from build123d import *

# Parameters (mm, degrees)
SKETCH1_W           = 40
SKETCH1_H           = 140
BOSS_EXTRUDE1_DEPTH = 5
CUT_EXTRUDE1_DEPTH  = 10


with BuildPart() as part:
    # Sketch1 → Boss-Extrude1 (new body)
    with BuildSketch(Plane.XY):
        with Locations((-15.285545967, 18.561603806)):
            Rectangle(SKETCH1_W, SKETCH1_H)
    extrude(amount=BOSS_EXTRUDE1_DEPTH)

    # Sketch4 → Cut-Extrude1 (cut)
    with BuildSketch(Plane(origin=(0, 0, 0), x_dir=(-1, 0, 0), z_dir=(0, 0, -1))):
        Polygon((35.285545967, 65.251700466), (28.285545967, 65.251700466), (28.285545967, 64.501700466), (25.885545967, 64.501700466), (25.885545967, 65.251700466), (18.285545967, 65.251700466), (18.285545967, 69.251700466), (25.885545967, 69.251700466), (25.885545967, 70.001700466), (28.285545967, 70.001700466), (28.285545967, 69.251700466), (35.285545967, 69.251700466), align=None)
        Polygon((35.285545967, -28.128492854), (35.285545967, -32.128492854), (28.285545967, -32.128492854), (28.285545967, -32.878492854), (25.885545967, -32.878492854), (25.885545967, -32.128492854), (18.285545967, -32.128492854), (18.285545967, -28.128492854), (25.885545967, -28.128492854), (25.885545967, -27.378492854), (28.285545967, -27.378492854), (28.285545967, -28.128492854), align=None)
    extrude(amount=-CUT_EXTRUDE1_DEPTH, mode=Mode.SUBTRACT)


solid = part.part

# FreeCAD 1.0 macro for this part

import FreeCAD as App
import Part
import Sketcher

V = App.Vector
Q = App.Units.Quantity


def add_polygon(sketch, points):
    """Adds a closed chain of lines whose ends are joined by coincident constraints."""
    first, n = sketch.GeometryCount, len(points)
    for a, b in zip(points, points[1:] + points[:1]):
        sketch.addGeometry(Part.LineSegment(App.Vector(*a, 0), App.Vector(*b, 0)), False)
    for i in range(n):
        sketch.addConstraint(Sketcher.Constraint("Coincident", first + i, 2, first + (i + 1) % n, 1))

doc = App.newDocument("Part")
params = doc.addObject("Spreadsheet::Sheet", "Params")
for row, (alias, value) in enumerate([
    ("sketch1_width", "40 mm"),
    ("sketch1_height", "140 mm"),
    ("pad1_length", "5 mm"),
    ("sketch2_width", "7 mm"),
    ("sketch2_height", "4 mm"),
    ("sketch2_width2", "2.4 mm"),
    ("sketch2_width3", "7.6 mm"),
    ("sketch2_height2", "0.75 mm"),
    ("pocket1_length", "10 mm"),
], start=1):
    params.set(f"A{row}", alias)
    params.set(f"B{row}", "=" + value)
    params.setAlias(f"B{row}", alias)

body = doc.addObject("PartDesign::Body", "Body")

# Sketch on XY plane
sketch1 = doc.addObject("Sketcher::SketchObject", "Sketch")
body.addObject(sketch1)
sketch1.AttachmentSupport = (doc.XY_Plane, [""])
sketch1.MapMode = "FlatFace"
add_polygon(sketch1, [(-35, 89), (-35, -51), (5, -51), (5, 89)])  # lines 0-3
sketch1.addConstraint(Sketcher.Constraint("Vertical", 0))
sketch1.addConstraint(Sketcher.Constraint("Horizontal", 1))
sketch1.addConstraint(Sketcher.Constraint("Vertical", 2))
sketch1.addConstraint(Sketcher.Constraint("Horizontal", 3))
sketch1.addConstraint(Sketcher.Constraint("DistanceX", 1, 1, 1, 2, Q("40 mm")))
sketch1.addConstraint(Sketcher.Constraint("DistanceY", 0, 2, 0, 1, Q("140 mm")))
sketch1.addConstraint(Sketcher.Constraint("DistanceX", 0, 2, -1, 1, Q("35.285546 mm")))
sketch1.addConstraint(Sketcher.Constraint("DistanceY", 0, 2, -1, 1, Q("51.438396 mm")))
sketch1.setExpression("Constraints[8]", "Params.sketch1_width")
sketch1.setExpression("Constraints[9]", "Params.sketch1_height")
pad1 = doc.addObject("PartDesign::Pad", "Pad")
body.addObject(pad1)
pad1.Profile = sketch1
pad1.setExpression("Length", "Params.pad1_length")

# Sketch on XY plane
sketch2 = doc.addObject("Sketcher::SketchObject", "Sketch001")
body.addObject(sketch2)
sketch2.AttachmentSupport = (doc.XY_Plane, [""])
sketch2.MapMode = "FlatFace"
add_polygon(sketch2, [(-28.3, 65.3), (-35.3, 65.3), (-35.3, 69.3), (-28.3, 69.3), (-28.3, 70), (-25.9, 70), (-25.9, 69.3), (-18.3, 69.3), (-18.3, 65.3), (-25.9, 65.3), (-25.9, 64.5), (-28.3, 64.5)])  # lines 0-11
add_polygon(sketch2, [(-35.3, -32.1), (-35.3, -28.1), (-28.3, -28.1), (-28.3, -27.4), (-25.9, -27.4), (-25.9, -28.1), (-18.3, -28.1), (-18.3, -32.1), (-25.9, -32.1), (-25.9, -32.9), (-28.3, -32.9), (-28.3, -32.1)])  # lines 12-23
sketch2.addConstraint(Sketcher.Constraint("Horizontal", 0))
sketch2.addConstraint(Sketcher.Constraint("Vertical", 1))
sketch2.addConstraint(Sketcher.Constraint("Horizontal", 2))
sketch2.addConstraint(Sketcher.Constraint("Vertical", 3))
sketch2.addConstraint(Sketcher.Constraint("Horizontal", 4))
sketch2.addConstraint(Sketcher.Constraint("Vertical", 5))
sketch2.addConstraint(Sketcher.Constraint("Horizontal", 6))
sketch2.addConstraint(Sketcher.Constraint("Vertical", 7))
sketch2.addConstraint(Sketcher.Constraint("Horizontal", 8))
sketch2.addConstraint(Sketcher.Constraint("Vertical", 9))
sketch2.addConstraint(Sketcher.Constraint("Horizontal", 10))
sketch2.addConstraint(Sketcher.Constraint("Vertical", 11))
sketch2.addConstraint(Sketcher.Constraint("Vertical", 12))
sketch2.addConstraint(Sketcher.Constraint("Horizontal", 13))
sketch2.addConstraint(Sketcher.Constraint("Vertical", 14))
sketch2.addConstraint(Sketcher.Constraint("Horizontal", 15))
sketch2.addConstraint(Sketcher.Constraint("Vertical", 16))
sketch2.addConstraint(Sketcher.Constraint("Horizontal", 17))
sketch2.addConstraint(Sketcher.Constraint("Vertical", 18))
sketch2.addConstraint(Sketcher.Constraint("Horizontal", 19))
sketch2.addConstraint(Sketcher.Constraint("Vertical", 20))
sketch2.addConstraint(Sketcher.Constraint("Horizontal", 21))
sketch2.addConstraint(Sketcher.Constraint("Vertical", 22))
sketch2.addConstraint(Sketcher.Constraint("Horizontal", 23))
sketch2.addConstraint(Sketcher.Constraint("Horizontal", 2, 2, 5, 2))
sketch2.addConstraint(Sketcher.Constraint("Horizontal", 0, 2, 7, 2))
sketch2.addConstraint(Sketcher.Constraint("Horizontal", 13, 2, 16, 2))
sketch2.addConstraint(Sketcher.Constraint("Horizontal", 19, 2, 22, 2))
sketch2.addConstraint(Sketcher.Constraint("Vertical", 5, 2, 8, 2))
sketch2.addConstraint(Sketcher.Constraint("Vertical", 3, 2, 10, 2))
sketch2.addConstraint(Sketcher.Constraint("Vertical", 1, 2, 12, 2))
sketch2.addConstraint(Sketcher.Constraint("Vertical", 11, 2, 13, 2))
sketch2.addConstraint(Sketcher.Constraint("Vertical", 9, 2, 15, 2))
sketch2.addConstraint(Sketcher.Constraint("Vertical", 7, 2, 17, 2))
sketch2.addConstraint(Sketcher.Constraint("Vertical", 16, 2, 19, 2))
sketch2.addConstraint(Sketcher.Constraint("Vertical", 14, 2, 21, 2))
sketch2.addConstraint(Sketcher.Constraint("Equal", 5, 9))
sketch2.addConstraint(Sketcher.Constraint("Equal", 7, 12))
sketch2.addConstraint(Sketcher.Constraint("Equal", 11, 14))
sketch2.addConstraint(Sketcher.Constraint("Equal", 16, 20))
sketch2.addConstraint(Sketcher.Constraint("DistanceX", 0, 2, 0, 1, Q("7 mm")))
sketch2.addConstraint(Sketcher.Constraint("DistanceY", 1, 1, 1, 2, Q("4 mm")))
sketch2.addConstraint(Sketcher.Constraint("DistanceX", 4, 1, 4, 2, Q("2.4 mm")))
sketch2.addConstraint(Sketcher.Constraint("DistanceX", 6, 1, 6, 2, Q("7.6 mm")))
sketch2.addConstraint(Sketcher.Constraint("DistanceY", 3, 1, 3, 2, Q("0.75 mm")))
sketch2.addConstraint(Sketcher.Constraint("DistanceY", -1, 1, 0, 2, Q("65.2517 mm")))
sketch2.addConstraint(Sketcher.Constraint("DistanceX", 0, 2, -1, 1, Q("35.285546 mm")))
sketch2.addConstraint(Sketcher.Constraint("DistanceY", 12, 2, -1, 1, Q("28.128493 mm")))
sketch2.setExpression("Constraints[64]", "Params.sketch2_width")
sketch2.setExpression("Constraints[65]", "Params.sketch2_height")
sketch2.setExpression("Constraints[66]", "Params.sketch2_width2")
sketch2.setExpression("Constraints[67]", "Params.sketch2_width3")
sketch2.setExpression("Constraints[68]", "Params.sketch2_height2")
pocket1 = doc.addObject("PartDesign::Pocket", "Pocket")
body.addObject(pocket1)
pocket1.Profile = sketch2
pocket1.setExpression("Length", "Params.pocket1_length")
pocket1.Reversed = True

doc.recompute()
